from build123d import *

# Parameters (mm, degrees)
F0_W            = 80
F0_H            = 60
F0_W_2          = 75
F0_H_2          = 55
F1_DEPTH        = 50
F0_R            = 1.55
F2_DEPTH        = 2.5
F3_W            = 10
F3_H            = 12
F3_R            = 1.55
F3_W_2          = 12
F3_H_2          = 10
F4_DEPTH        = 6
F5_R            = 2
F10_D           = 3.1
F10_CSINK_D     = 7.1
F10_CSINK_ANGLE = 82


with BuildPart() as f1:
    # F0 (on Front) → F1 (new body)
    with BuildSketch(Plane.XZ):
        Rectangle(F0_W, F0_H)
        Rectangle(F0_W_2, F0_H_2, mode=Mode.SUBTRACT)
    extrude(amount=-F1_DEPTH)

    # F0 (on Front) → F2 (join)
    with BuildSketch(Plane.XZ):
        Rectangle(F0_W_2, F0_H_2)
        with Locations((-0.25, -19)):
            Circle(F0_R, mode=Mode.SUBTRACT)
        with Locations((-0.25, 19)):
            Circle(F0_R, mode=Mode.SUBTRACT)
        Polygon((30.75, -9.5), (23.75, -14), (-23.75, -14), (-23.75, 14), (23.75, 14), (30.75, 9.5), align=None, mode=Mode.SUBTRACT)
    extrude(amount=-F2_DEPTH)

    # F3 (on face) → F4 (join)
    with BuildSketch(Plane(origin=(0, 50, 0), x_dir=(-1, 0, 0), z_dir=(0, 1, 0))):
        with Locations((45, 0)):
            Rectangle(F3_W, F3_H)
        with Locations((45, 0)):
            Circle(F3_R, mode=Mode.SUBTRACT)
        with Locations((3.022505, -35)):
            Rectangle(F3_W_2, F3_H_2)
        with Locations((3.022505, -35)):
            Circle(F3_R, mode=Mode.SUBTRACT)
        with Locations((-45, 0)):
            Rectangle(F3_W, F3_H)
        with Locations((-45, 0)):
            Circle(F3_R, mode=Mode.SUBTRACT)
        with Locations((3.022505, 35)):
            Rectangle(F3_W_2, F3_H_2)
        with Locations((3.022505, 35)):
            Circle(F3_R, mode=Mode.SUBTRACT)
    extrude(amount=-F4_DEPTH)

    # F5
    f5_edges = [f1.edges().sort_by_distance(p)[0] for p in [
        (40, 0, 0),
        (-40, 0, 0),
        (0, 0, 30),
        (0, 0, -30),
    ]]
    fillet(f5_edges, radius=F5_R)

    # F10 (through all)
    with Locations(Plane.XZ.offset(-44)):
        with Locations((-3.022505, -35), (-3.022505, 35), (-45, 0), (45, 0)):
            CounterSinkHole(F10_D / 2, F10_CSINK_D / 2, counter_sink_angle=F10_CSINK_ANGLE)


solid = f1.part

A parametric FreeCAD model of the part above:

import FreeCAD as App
import Part
import Sketcher
Q = App.Units.Quantity


def edges_at(feature, points):
    """Names of the edges that pass closest to the given points."""
    edges = feature.Shape.Edges
    near = lambda p: min(range(len(edges)), key=lambda i: edges[i].distToShape(Part.Vertex(*p))[0])
    return sorted({f"Edge{near(p) + 1}" for p in points})

doc = App.newDocument("Part")
body = doc.addObject("PartDesign::Body", "Body")

# Sketch on XZ plane
sketch1 = body.newObject("Sketcher::SketchObject", "Sketch")
sketch1.AttachmentSupport = (doc.getObject("XZ_Plane"), [""])
sketch1.MapMode = "FlatFace"
sketch1.addGeometry([
    Part.LineSegment(App.Vector(-40, 30, 0), App.Vector(-40, -30, 0)),  # 0
    Part.LineSegment(App.Vector(-40, -30, 0), App.Vector(40, -30, 0)),  # 1
    Part.LineSegment(App.Vector(40, -30, 0), App.Vector(40, 30, 0)),  # 2
    Part.LineSegment(App.Vector(40, 30, 0), App.Vector(-40, 30, 0)),  # 3
    Part.LineSegment(App.Vector(38, -28, 0), App.Vector(-38, -28, 0)),  # 4
    Part.LineSegment(App.Vector(-38, -28, 0), App.Vector(-38, 28, 0)),  # 5
    Part.LineSegment(App.Vector(-38, 28, 0), App.Vector(38, 28, 0)),  # 6
    Part.LineSegment(App.Vector(38, 28, 0), App.Vector(38, -28, 0)),  # 7
], False)
sketch1.addConstraint([
    Sketcher.Constraint("Coincident", 0, 2, 1, 1),
    Sketcher.Constraint("Coincident", 1, 2, 2, 1),
    Sketcher.Constraint("Coincident", 2, 2, 3, 1),
    Sketcher.Constraint("Coincident", 3, 2, 0, 1),
    Sketcher.Constraint("Coincident", 4, 2, 5, 1),
    Sketcher.Constraint("Coincident", 5, 2, 6, 1),
    Sketcher.Constraint("Coincident", 6, 2, 7, 1),
    Sketcher.Constraint("Coincident", 7, 2, 4, 1),
    Sketcher.Constraint("Vertical", 0),
    Sketcher.Constraint("Horizontal", 1),
    Sketcher.Constraint("Vertical", 2),
    Sketcher.Constraint("Horizontal", 3),
    Sketcher.Constraint("Horizontal", 4),
    Sketcher.Constraint("Vertical", 5),
    Sketcher.Constraint("Horizontal", 6),
    Sketcher.Constraint("Vertical", 7),
    Sketcher.Constraint("Symmetric", 0, 2, 2, 2, -1, 1),
    Sketcher.Constraint("Symmetric", 4, 2, 6, 2, -1, 1),
    Sketcher.Constraint("DistanceX", 1, 1, 1, 2, Q("80 mm")),
    Sketcher.Constraint("DistanceX", 4, 2, 4, 1, Q("75 mm")),
    Sketcher.Constraint("DistanceY", 0, 2, 0, 1, Q("60 mm")),
    Sketcher.Constraint("DistanceY", 5, 1, 5, 2, Q("55 mm")),
])
pad1 = body.newObject("PartDesign::Pad", "Pad")
pad1.Profile = sketch1
pad1.Length = 50
pad1.Reversed = True

# Sketch on XZ plane
sketch2 = body.newObject("Sketcher::SketchObject", "Sketch001")
sketch2.AttachmentSupport = (doc.getObject("XZ_Plane"), [""])
sketch2.MapMode = "FlatFace"
sketch2.addGeometry([
    Part.LineSegment(App.Vector(-37.5, 27.5, 0), App.Vector(-37.5, -27.5, 0)),  # 0
    Part.LineSegment(App.Vector(-37.5, -27.5, 0), App.Vector(37.5, -27.5, 0)),  # 1
    Part.LineSegment(App.Vector(37.5, -27.5, 0), App.Vector(37.5, 27.5, 0)),  # 2
    Part.LineSegment(App.Vector(37.5, 27.5, 0), App.Vector(-37.5, 27.5, 0)),  # 3
    Part.Circle(App.Vector(-0.2, -19, 0), App.Vector(0, 0, 1), 1.6),  # 4
    Part.Circle(App.Vector(-0.2, 19, 0), App.Vector(0, 0, 1), 1.6),  # 5
    Part.LineSegment(App.Vector(30.8, 9.5, 0), App.Vector(30.8, -9.5, 0)),  # 6
    Part.LineSegment(App.Vector(30.8, -9.5, 0), App.Vector(23.8, -14, 0)),  # 7
    Part.LineSegment(App.Vector(23.8, -14, 0), App.Vector(-23.8, -14, 0)),  # 8
    Part.LineSegment(App.Vector(-23.8, -14, 0), App.Vector(-23.8, 14, 0)),  # 9
    Part.LineSegment(App.Vector(-23.8, 14, 0), App.Vector(23.8, 14, 0)),  # 10
    Part.LineSegment(App.Vector(23.8, 14, 0), App.Vector(30.8, 9.5, 0)),  # 11
], False)
sketch2.addConstraint([
    Sketcher.Constraint("Coincident", 0, 2, 1, 1),
    Sketcher.Constraint("Coincident", 1, 2, 2, 1),
    Sketcher.Constraint("Coincident", 2, 2, 3, 1),
    Sketcher.Constraint("Coincident", 3, 2, 0, 1),
    Sketcher.Constraint("Coincident", 6, 2, 7, 1),
    Sketcher.Constraint("Coincident", 7, 2, 8, 1),
    Sketcher.Constraint("Coincident", 8, 2, 9, 1),
    Sketcher.Constraint("Coincident", 9, 2, 10, 1),
    Sketcher.Constraint("Coincident", 10, 2, 11, 1),
    Sketcher.Constraint("Coincident", 11, 2, 6, 1),
    Sketcher.Constraint("Vertical", 0),
    Sketcher.Constraint("Horizontal", 1),
    Sketcher.Constraint("Vertical", 2),
    Sketcher.Constraint("Horizontal", 3),
    Sketcher.Constraint("Vertical", 6),
    Sketcher.Constraint("Horizontal", 8),
    Sketcher.Constraint("Vertical", 9),
    Sketcher.Constraint("Horizontal", 10),
    Sketcher.Constraint("Equal", 4, 5),
    Sketcher.Constraint("Symmetric", 0, 2, 2, 2, -1, 1),
    Sketcher.Constraint("Symmetric", 7, 2, 9, 2, -1, 1),
    Sketcher.Constraint("Symmetric", 4, 3, 5, 3, -1),
    Sketcher.Constraint("Vertical", 7, 2, 10, 2),
    Sketcher.Constraint("Equal", 7, 11),
    Sketcher.Constraint("Diameter", 4, Q("3.1 mm")),
    Sketcher.Constraint("DistanceX", 1, 1, 1, 2, Q("75 mm")),
    Sketcher.Constraint("DistanceY", 0, 2, 0, 1, Q("55 mm")),
    Sketcher.Constraint("DistanceY", 6, 2, 6, 1, Q("19 mm")),
    Sketcher.Constraint("DistanceY", 9, 1, 9, 2, Q("28 mm")),
    Sketcher.Constraint("DistanceX", 8, 2, 8, 1, Q("47.5 mm")),
    Sketcher.Constraint("DistanceY", 4, 3, -1, 1, Q("19 mm")),
    Sketcher.Constraint("DistanceX", 4, 3, 6, 2, Q("31 mm")),
    Sketcher.Constraint("DistanceX", 7, 2, 6, 2, Q("7 mm")),
])
pad2 = body.newObject("PartDesign::Pad", "Pad001")
pad2.Profile = sketch2
pad2.Length = 2.5
pad2.Reversed = True

# Sketch on XZ plane
sketch3 = body.newObject("Sketcher::SketchObject", "Sketch002")
sketch3.AttachmentSupport = (doc.getObject("XZ_Plane"), [""])
sketch3.MapMode = "FlatFace"
sketch3.AttachmentOffset = App.Placement(App.Vector(0, 0, -50), App.Rotation())
sketch3.addGeometry([
    Part.LineSegment(App.Vector(-40, 6, 0), App.Vector(-40, -6, 0)),  # 0
    Part.LineSegment(App.Vector(-40, -6, 0), App.Vector(-50, -6, 0)),  # 1
    Part.LineSegment(App.Vector(-50, -6, 0), App.Vector(-50, 6, 0)),  # 2
    Part.LineSegment(App.Vector(-50, 6, 0), App.Vector(-40, 6, 0)),  # 3
    Part.Circle(App.Vector(-45, 0, 0), App.Vector(0, 0, 1), 1.6),  # 4
    Part.LineSegment(App.Vector(3, -30, 0), App.Vector(3, -40, 0)),  # 5
    Part.LineSegment(App.Vector(3, -40, 0), App.Vector(-9, -40, 0)),  # 6
    Part.LineSegment(App.Vector(-9, -40, 0), App.Vector(-9, -30, 0)),  # 7
    Part.LineSegment(App.Vector(-9, -30, 0), App.Vector(3, -30, 0)),  # 8
    Part.Circle(App.Vector(-3, -35, 0), App.Vector(0, 0, 1), 1.6),  # 9
    Part.LineSegment(App.Vector(50, 6, 0), App.Vector(50, -6, 0)),  # 10
    Part.LineSegment(App.Vector(50, -6, 0), App.Vector(40, -6, 0)),  # 11
    Part.LineSegment(App.Vector(40, -6, 0), App.Vector(40, 6, 0)),  # 12
    Part.LineSegment(App.Vector(40, 6, 0), App.Vector(50, 6, 0)),  # 13
    Part.Circle(App.Vector(45, 0, 0), App.Vector(0, 0, 1), 1.6),  # 14
    Part.LineSegment(App.Vector(3, 40, 0), App.Vector(3, 30, 0)),  # 15
    Part.LineSegment(App.Vector(3, 30, 0), App.Vector(-9, 30, 0)),  # 16
    Part.LineSegment(App.Vector(-9, 30, 0), App.Vector(-9, 40, 0)),  # 17
    Part.LineSegment(App.Vector(-9, 40, 0), App.Vector(3, 40, 0)),  # 18
    Part.Circle(App.Vector(-3, 35, 0), App.Vector(0, 0, 1), 1.6),  # 19
], False)
sketch3.addConstraint([
    Sketcher.Constraint("Coincident", 0, 2, 1, 1),
    Sketcher.Constraint("Coincident", 1, 2, 2, 1),
    Sketcher.Constraint("Coincident", 2, 2, 3, 1),
    Sketcher.Constraint("Coincident", 3, 2, 0, 1),
    Sketcher.Constraint("Coincident", 5, 2, 6, 1),
    Sketcher.Constraint("Coincident", 6, 2, 7, 1),
    Sketcher.Constraint("Coincident", 7, 2, 8, 1),
    Sketcher.Constraint("Coincident", 8, 2, 5, 1),
    Sketcher.Constraint("Coincident", 10, 2, 11, 1),
    Sketcher.Constraint("Coincident", 11, 2, 12, 1),
    Sketcher.Constraint("Coincident", 12, 2, 13, 1),
    Sketcher.Constraint("Coincident", 13, 2, 10, 1),
    Sketcher.Constraint("Coincident", 15, 2, 16, 1),
    Sketcher.Constraint("Coincident", 16, 2, 17, 1),
    Sketcher.Constraint("Coincident", 17, 2, 18, 1),
    Sketcher.Constraint("Coincident", 18, 2, 15, 1),
    Sketcher.Constraint("Vertical", 0),
    Sketcher.Constraint("Horizontal", 1),
    Sketcher.Constraint("Vertical", 2),
    Sketcher.Constraint("Horizontal", 3),
    Sketcher.Constraint("Vertical", 5),
    Sketcher.Constraint("Horizontal", 6),
    Sketcher.Constraint("Vertical", 7),
    Sketcher.Constraint("Horizontal", 8),
    Sketcher.Constraint("Vertical", 10),
    Sketcher.Constraint("Horizontal", 11),
    Sketcher.Constraint("Vertical", 12),
    Sketcher.Constraint("Horizontal", 13),
    Sketcher.Constraint("Vertical", 15),
    Sketcher.Constraint("Horizontal", 16),
    Sketcher.Constraint("Vertical", 17),
    Sketcher.Constraint("Horizontal", 18),
    Sketcher.Constraint("Equal", 4, 9),
    Sketcher.Constraint("Equal", 9, 14),
    Sketcher.Constraint("Equal", 14, 19),
    Sketcher.Constraint("Symmetric", 4, 3, 14, 3, -1, 1),
    Sketcher.Constraint("Symmetric", 2, 2, 10, 2, -1, 1),
    Sketcher.Constraint("Symmetric", 0, 2, 12, 2, -1, 1),
    Sketcher.Constraint("Symmetric", 9, 3, 19, 3, -1),
    Sketcher.Constraint("Symmetric", 8, 2, 15, 2, -1),
    Sketcher.Constraint("Symmetric", 6, 2, 17, 2, -1),
    Sketcher.Constraint("PointOnObject", 4, 3, -1),
    Sketcher.Constraint("Horizontal", 1, 2, 10, 2),
    Sketcher.Constraint("Equal", 18, 0),
    Sketcher.Constraint("Equal", 13, 5),
    Sketcher.Constraint("Diameter", 4, Q("3.1 mm")),
    Sketcher.Constraint("DistanceX", 1, 2, 1, 1, Q("10 mm")),
    Sketcher.Constraint("DistanceX", 6, 2, 6, 1, Q("12 mm")),
    Sketcher.Constraint("DistanceX", 4, 3, -1, 1, Q("45 mm")),
    Sketcher.Constraint("DistanceY", 9, 3, -1, 1, Q("35 mm")),
    Sketcher.Constraint("DistanceX", 0, 2, -1, 1, Q("40 mm")),
    Sketcher.Constraint("DistanceY", 5, 2, -1, 1, Q("40 mm")),
    Sketcher.Constraint("DistanceX", 9, 3, 5, 2, Q("6 mm")),
    Sketcher.Constraint("DistanceX", 9, 3, -1, 1, Q("3.022505 mm")),
])
pad3 = body.newObject("PartDesign::Pad", "Pad002")
pad3.Profile = sketch3
pad3.Length = 6
doc.recompute()

fillet = body.newObject("PartDesign::Fillet", "Fillet")
fillet.Base = (pad3, edges_at(pad3, [
    (40, 0, 0),
    (-40, 0, 0),
    (0, 0, 30),
    (0, 0, -30),
]))
fillet.Radius = 2

# Sketch on XZ plane
sketch4 = body.newObject("Sketcher::SketchObject", "Sketch003")
sketch4.AttachmentSupport = (doc.getObject("XZ_Plane"), [""])
sketch4.MapMode = "FlatFace"
sketch4.AttachmentOffset = App.Placement(App.Vector(0, 0, -44), App.Rotation())
sketch4.addGeometry([
    Part.Circle(App.Vector(-3, -35, 0), App.Vector(0, 0, 1), 1.6),
    Part.Circle(App.Vector(-3, 35, 0), App.Vector(0, 0, 1), 1.6),
    Part.Circle(App.Vector(-45, 0, 0), App.Vector(0, 0, 1), 1.6),
    Part.Circle(App.Vector(45, 0, 0), App.Vector(0, 0, 1), 1.6),
], False)
sketch4.addConstraint([
    Sketcher.Constraint("Equal", 0, 1),
    Sketcher.Constraint("Equal", 1, 2),
    Sketcher.Constraint("Equal", 2, 3),
    Sketcher.Constraint("Symmetric", 2, 3, 3, 3, -1, 1),
    Sketcher.Constraint("Symmetric", 0, 3, 1, 3, -1),
    Sketcher.Constraint("PointOnObject", 2, 3, -1),
    Sketcher.Constraint("Diameter", 0, Q("3.1 mm")),
    Sketcher.Constraint("DistanceY", 0, 3, -1, 1, Q("35 mm")),
    Sketcher.Constraint("DistanceX", 2, 3, -1, 1, Q("45 mm")),
    Sketcher.Constraint("DistanceX", 0, 3, -1, 1, Q("3.022505 mm")),
])
doc.recompute()
hole = body.newObject("PartDesign::Hole", "Hole")
hole.Profile = sketch4
hole.ThreadType = "None"
hole.Diameter = 3.1
hole.DepthType = "ThroughAll"
hole.HoleCutType = "Countersink"
hole.HoleCutDiameter = 7.1
hole.HoleCutCountersinkAngle = 82

doc.recompute()
